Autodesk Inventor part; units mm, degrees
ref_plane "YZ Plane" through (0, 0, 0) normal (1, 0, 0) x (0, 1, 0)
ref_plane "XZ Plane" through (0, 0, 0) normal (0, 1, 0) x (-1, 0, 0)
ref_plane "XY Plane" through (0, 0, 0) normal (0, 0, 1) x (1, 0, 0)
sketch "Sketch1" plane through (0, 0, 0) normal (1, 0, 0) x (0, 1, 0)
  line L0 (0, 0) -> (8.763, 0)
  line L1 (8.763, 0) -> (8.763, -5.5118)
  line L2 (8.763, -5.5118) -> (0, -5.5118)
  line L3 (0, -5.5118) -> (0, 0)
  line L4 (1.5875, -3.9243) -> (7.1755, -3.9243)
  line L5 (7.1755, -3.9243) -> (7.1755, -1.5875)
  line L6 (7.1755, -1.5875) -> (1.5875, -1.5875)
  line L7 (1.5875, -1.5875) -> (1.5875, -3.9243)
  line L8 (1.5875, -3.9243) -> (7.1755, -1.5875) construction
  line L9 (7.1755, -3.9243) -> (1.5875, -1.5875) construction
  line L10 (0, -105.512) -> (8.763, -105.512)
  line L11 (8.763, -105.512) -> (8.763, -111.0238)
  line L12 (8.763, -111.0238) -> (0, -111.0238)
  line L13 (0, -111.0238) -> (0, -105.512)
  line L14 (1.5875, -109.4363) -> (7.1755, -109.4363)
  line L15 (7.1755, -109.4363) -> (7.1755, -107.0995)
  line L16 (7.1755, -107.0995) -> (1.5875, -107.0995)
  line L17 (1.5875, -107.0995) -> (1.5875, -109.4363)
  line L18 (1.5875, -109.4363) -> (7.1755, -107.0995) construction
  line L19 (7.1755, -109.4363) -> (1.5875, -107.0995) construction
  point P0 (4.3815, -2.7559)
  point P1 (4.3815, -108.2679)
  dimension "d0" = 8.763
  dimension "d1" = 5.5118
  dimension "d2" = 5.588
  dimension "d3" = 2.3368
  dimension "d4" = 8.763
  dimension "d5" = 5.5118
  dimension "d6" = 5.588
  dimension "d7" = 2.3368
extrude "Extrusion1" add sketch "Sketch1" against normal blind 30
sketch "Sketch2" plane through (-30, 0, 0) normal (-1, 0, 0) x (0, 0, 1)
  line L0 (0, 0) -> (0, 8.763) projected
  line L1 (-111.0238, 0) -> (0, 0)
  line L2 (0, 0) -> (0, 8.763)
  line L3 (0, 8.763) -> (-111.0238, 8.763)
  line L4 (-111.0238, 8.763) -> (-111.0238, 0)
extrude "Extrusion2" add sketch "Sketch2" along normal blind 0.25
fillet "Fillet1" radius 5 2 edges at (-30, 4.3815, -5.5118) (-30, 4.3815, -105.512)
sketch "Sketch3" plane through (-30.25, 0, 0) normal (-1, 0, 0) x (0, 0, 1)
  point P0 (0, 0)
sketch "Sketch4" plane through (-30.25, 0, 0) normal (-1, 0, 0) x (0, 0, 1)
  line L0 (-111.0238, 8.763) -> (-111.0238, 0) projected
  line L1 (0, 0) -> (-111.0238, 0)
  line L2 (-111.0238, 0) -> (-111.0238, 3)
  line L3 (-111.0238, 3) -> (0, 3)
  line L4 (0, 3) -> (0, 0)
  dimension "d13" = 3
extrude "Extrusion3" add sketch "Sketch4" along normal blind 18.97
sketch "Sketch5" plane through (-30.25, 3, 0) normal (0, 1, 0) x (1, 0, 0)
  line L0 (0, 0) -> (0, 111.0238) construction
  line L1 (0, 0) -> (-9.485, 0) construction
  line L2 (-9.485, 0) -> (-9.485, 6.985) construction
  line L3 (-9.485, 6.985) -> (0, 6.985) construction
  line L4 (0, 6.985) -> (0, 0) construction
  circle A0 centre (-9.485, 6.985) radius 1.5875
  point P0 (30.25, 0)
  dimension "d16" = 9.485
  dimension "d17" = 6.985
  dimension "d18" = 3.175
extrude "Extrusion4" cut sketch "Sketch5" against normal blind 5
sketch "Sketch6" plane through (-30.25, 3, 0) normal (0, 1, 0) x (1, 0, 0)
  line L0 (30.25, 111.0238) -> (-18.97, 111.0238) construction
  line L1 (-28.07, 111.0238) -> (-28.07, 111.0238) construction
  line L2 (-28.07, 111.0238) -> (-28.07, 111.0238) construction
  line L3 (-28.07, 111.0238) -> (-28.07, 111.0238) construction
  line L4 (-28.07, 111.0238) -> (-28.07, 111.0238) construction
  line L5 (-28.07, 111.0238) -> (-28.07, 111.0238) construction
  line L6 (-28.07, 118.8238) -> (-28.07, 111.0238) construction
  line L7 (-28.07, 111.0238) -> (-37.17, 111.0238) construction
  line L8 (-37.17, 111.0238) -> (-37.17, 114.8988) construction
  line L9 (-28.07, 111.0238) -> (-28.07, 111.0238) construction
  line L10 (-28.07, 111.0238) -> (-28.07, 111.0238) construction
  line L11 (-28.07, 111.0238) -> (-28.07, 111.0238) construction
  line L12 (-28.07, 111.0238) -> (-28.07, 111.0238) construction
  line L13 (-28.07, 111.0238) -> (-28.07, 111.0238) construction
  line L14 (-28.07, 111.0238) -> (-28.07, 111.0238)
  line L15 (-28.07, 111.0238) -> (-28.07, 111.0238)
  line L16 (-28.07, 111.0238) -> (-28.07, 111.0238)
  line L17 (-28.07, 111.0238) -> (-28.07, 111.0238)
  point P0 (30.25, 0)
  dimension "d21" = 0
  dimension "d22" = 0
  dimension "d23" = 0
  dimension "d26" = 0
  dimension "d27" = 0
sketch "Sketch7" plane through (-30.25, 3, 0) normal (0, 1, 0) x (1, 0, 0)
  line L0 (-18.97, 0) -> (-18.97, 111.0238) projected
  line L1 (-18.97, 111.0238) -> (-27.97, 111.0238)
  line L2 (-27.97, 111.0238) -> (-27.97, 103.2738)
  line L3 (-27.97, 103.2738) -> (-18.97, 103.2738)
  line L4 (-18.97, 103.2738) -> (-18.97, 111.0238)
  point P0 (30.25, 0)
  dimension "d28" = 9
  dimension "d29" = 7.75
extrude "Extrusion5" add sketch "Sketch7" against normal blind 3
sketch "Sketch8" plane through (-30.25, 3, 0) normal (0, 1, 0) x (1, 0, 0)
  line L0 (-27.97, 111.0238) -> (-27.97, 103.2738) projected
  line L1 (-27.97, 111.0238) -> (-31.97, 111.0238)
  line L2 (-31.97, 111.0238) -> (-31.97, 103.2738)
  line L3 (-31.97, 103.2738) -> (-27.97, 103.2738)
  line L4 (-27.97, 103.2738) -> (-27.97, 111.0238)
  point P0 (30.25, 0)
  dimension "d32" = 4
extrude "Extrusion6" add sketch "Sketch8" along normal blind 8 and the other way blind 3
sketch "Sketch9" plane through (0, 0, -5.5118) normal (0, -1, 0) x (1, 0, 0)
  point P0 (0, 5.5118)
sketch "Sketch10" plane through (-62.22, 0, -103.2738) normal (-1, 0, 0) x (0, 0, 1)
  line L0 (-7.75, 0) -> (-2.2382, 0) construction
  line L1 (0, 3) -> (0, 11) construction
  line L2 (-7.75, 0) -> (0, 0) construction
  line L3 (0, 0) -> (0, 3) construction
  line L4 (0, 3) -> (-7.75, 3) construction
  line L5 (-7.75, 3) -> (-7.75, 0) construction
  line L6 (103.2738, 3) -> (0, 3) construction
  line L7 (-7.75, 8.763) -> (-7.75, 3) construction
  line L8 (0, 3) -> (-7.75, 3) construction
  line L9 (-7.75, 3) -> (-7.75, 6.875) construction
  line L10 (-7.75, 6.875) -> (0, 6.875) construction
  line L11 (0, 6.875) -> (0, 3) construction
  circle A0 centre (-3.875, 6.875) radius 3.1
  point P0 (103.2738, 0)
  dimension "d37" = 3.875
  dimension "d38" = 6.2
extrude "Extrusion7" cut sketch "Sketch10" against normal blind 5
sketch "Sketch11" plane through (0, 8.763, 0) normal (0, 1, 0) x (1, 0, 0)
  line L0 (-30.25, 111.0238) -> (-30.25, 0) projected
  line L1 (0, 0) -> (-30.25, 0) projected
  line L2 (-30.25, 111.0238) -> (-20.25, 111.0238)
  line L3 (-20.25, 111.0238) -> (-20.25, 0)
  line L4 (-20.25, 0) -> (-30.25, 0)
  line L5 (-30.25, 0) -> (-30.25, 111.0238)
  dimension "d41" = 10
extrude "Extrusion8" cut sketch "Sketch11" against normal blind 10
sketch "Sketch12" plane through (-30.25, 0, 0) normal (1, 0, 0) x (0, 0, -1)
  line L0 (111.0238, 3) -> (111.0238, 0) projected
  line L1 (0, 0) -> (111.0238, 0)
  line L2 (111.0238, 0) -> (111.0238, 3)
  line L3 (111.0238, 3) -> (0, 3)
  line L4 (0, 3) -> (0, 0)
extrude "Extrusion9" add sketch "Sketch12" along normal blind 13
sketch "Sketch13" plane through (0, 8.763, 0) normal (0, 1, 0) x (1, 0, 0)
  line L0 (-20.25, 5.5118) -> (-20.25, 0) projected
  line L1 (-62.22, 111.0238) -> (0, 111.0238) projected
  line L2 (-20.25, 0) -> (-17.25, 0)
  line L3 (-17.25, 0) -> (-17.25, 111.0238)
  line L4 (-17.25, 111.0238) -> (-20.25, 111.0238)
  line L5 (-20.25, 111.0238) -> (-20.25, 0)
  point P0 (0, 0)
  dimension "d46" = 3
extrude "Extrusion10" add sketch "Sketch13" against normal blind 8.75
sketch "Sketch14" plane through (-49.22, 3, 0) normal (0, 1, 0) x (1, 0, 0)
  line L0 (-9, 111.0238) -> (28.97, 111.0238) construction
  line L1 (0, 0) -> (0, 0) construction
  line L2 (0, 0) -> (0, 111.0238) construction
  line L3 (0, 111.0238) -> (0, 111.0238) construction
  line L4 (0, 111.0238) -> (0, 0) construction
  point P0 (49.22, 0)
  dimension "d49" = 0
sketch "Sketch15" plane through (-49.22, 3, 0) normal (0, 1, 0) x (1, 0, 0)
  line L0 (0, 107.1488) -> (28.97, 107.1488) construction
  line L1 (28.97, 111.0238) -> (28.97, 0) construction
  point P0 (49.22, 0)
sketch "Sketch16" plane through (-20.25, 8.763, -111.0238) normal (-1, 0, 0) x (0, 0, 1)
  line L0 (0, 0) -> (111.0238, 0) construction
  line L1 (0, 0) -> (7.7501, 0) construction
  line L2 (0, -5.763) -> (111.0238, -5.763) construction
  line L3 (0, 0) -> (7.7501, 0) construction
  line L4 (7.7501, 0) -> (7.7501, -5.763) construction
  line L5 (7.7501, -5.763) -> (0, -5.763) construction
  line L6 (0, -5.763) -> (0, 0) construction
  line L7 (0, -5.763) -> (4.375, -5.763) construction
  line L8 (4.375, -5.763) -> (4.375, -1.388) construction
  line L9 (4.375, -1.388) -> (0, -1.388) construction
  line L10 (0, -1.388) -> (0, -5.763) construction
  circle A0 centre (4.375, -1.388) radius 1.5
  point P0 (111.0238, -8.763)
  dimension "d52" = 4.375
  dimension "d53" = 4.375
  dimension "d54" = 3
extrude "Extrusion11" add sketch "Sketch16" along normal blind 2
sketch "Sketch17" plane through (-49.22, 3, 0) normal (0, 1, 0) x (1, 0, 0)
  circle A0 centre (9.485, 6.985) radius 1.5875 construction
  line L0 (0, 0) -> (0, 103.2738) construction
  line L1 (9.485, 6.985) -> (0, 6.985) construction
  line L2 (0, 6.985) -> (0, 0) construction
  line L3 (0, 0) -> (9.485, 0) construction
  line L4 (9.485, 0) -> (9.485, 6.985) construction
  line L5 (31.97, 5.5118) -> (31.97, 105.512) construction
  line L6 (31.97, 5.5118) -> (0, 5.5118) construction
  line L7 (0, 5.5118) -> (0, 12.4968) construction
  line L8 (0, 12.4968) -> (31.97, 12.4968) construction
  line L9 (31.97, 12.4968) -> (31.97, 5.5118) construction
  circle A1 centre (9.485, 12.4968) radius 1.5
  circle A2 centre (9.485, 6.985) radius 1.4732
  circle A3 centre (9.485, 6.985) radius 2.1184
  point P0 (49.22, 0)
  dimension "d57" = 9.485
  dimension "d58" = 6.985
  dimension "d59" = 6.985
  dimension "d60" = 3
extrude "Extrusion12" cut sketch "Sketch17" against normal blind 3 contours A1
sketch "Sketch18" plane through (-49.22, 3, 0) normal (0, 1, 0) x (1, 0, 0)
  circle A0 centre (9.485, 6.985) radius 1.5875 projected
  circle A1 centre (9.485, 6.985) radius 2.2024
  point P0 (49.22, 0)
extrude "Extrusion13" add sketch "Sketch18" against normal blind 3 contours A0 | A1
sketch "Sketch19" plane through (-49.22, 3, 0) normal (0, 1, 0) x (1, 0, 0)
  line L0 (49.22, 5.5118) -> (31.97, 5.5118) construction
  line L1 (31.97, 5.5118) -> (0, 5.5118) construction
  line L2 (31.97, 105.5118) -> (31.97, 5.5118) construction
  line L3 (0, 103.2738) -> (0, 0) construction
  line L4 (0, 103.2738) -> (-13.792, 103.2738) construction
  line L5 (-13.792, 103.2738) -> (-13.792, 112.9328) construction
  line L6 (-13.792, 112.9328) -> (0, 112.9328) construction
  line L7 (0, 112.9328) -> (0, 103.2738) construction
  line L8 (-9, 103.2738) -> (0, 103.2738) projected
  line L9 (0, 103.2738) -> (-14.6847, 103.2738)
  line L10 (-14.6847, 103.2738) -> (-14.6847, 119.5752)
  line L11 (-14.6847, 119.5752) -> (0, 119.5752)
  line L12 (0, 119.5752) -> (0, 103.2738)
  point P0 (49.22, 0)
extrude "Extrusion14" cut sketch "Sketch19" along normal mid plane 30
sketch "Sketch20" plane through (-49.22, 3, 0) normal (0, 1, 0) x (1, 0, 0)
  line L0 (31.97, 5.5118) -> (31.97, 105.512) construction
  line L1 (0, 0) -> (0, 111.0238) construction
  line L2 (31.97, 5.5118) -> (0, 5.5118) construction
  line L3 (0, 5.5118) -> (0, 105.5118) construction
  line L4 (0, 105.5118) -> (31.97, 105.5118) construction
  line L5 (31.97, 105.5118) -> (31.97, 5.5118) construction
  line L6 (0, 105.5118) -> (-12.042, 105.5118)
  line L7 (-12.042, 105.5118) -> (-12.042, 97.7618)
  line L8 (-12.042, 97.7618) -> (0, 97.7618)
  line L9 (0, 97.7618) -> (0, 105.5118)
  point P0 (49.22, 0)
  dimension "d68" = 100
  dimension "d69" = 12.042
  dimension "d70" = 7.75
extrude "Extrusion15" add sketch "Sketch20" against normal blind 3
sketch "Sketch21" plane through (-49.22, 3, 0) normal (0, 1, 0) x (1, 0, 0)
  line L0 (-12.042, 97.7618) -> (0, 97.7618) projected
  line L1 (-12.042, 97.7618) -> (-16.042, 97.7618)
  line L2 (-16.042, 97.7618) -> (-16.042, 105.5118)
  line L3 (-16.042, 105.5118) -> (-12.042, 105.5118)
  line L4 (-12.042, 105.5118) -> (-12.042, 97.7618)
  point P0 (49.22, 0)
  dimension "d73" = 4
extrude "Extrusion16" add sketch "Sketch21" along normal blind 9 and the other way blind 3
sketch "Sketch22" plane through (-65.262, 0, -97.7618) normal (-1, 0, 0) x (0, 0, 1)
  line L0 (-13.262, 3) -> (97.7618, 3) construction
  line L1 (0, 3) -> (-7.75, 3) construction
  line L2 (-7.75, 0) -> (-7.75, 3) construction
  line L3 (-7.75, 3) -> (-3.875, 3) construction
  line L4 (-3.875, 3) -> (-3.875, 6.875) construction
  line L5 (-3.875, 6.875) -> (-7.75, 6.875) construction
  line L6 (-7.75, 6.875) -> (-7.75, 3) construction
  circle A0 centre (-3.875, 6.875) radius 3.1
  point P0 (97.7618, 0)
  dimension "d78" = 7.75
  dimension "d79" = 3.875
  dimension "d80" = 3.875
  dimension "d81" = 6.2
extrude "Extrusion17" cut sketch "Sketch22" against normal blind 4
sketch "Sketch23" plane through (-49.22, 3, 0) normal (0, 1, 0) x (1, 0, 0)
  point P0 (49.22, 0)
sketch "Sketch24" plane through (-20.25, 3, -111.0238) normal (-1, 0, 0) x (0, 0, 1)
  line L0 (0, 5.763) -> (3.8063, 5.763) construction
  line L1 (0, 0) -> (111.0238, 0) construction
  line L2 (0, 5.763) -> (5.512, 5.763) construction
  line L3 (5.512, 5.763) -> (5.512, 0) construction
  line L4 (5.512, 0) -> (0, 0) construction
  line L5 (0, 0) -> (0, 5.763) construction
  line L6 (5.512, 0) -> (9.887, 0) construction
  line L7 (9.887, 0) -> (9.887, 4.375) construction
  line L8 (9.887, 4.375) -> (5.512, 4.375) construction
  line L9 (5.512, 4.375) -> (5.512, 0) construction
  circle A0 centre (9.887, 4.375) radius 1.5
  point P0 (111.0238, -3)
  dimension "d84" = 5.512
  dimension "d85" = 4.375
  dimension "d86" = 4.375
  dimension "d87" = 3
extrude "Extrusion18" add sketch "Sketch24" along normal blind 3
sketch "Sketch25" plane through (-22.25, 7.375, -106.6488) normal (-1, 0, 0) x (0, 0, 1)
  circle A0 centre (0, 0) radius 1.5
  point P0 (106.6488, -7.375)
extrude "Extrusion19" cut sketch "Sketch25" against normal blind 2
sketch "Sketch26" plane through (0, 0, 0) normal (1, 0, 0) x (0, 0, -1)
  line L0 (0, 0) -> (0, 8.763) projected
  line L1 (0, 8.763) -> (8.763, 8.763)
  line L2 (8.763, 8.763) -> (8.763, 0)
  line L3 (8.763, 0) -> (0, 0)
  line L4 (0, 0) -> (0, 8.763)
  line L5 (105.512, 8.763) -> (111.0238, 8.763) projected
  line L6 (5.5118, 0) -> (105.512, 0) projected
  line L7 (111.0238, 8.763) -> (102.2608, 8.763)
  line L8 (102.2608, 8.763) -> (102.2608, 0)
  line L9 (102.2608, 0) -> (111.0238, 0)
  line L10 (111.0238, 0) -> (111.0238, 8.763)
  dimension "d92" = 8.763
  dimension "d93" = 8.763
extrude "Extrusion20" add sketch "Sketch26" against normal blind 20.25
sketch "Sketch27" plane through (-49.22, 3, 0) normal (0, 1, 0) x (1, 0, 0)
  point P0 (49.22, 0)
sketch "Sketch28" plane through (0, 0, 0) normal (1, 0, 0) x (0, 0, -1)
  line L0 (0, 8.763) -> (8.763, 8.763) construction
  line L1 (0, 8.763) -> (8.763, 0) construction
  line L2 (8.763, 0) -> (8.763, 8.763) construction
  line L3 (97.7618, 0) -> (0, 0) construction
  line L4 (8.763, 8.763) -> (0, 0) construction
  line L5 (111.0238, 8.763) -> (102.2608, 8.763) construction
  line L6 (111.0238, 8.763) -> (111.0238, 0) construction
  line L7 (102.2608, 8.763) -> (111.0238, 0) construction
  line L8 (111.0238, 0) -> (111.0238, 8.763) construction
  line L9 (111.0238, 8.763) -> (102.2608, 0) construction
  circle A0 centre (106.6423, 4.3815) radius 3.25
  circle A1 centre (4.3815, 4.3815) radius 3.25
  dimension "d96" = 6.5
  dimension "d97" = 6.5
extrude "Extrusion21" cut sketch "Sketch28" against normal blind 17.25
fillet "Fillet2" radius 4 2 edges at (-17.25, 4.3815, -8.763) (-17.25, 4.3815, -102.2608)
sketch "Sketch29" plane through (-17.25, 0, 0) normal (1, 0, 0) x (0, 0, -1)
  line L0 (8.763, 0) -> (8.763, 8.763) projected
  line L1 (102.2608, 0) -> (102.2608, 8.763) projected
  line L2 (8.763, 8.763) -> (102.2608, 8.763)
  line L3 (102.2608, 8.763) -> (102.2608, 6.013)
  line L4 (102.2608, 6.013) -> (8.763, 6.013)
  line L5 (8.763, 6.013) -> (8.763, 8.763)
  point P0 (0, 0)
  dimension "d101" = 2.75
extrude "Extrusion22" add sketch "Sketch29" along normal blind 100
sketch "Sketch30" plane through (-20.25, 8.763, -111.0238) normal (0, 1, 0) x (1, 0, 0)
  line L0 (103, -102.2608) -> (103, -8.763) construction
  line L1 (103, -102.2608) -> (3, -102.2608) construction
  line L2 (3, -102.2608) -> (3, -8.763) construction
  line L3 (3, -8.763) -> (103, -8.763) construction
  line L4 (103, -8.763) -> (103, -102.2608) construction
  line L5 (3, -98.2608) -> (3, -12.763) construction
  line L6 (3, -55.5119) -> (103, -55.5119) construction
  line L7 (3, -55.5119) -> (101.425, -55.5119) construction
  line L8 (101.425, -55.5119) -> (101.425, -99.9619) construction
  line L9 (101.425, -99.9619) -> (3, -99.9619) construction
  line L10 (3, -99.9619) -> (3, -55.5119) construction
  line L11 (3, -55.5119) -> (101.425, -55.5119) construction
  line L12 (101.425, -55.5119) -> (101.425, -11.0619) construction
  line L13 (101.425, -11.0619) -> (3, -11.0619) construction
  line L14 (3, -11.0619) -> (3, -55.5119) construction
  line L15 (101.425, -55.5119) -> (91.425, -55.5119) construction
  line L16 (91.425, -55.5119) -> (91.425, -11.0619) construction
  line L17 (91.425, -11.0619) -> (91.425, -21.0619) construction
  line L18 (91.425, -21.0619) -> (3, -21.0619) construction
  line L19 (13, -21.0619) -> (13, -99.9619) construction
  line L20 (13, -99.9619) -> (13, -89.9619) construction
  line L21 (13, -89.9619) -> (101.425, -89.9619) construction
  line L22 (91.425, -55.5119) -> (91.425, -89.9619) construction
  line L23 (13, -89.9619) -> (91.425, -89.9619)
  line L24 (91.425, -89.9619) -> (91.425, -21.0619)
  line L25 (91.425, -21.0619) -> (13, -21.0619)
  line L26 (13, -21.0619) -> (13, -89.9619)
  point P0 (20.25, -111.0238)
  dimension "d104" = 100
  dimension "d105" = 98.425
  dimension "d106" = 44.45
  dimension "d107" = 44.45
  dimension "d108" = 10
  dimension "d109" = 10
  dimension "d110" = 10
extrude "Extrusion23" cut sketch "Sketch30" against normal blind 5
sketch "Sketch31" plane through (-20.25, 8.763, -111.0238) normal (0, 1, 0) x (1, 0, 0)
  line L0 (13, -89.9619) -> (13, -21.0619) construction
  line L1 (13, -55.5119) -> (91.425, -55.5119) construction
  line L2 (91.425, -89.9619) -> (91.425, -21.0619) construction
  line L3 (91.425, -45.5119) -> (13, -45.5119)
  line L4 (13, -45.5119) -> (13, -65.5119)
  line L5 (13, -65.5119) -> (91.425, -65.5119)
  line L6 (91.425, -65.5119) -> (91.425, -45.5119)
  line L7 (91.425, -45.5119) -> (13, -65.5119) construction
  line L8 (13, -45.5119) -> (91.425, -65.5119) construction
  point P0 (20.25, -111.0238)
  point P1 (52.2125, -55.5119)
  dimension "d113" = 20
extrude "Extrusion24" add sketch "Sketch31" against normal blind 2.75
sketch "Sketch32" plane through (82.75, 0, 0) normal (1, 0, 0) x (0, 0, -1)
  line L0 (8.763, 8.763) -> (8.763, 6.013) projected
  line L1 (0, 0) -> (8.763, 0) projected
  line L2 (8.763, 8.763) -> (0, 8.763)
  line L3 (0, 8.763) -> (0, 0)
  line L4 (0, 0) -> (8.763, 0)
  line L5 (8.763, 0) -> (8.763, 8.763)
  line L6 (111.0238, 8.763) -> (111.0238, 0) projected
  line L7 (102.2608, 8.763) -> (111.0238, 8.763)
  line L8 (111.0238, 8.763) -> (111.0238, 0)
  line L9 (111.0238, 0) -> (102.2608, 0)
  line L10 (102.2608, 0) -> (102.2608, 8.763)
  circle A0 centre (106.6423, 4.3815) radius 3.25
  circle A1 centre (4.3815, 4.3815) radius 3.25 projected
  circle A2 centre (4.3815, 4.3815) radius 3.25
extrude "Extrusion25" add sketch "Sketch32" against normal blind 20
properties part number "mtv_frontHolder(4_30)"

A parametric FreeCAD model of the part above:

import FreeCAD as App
import Part
import Sketcher

V = App.Vector
Q = App.Units.Quantity


def edges_at(feature, points):
    """Names of the edges that pass closest to the given points."""
    edges = feature.Shape.Edges
    near = lambda p: min(range(len(edges)), key=lambda i: edges[i].distToShape(Part.Vertex(*p))[0])
    return sorted({f"Edge{near(p) + 1}" for p in points})

doc = App.newDocument("Part")
body = doc.addObject("PartDesign::Body", "Body")
body.AllowCompound = True

# Sketch on YZ plane
sketch1 = body.newObject("Sketcher::SketchObject", "Sketch")
sketch1.AttachmentSupport = (doc.getObject("YZ_Plane"), [""])
sketch1.MapMode = "FlatFace"
sketch1.addGeometry([
    Part.LineSegment(V(8.8, 0, 0), V(0, 0, 0)),  # 0
    Part.LineSegment(V(0, 0, 0), V(0, -5.5, 0)),  # 1
    Part.LineSegment(V(0, -5.5, 0), V(8.8, -5.5, 0)),  # 2
    Part.LineSegment(V(8.8, -5.5, 0), V(8.8, 0, 0)),  # 3
    Part.LineSegment(V(7.2, -3.9, 0), V(1.6, -3.9, 0)),  # 4
    Part.LineSegment(V(1.6, -3.9, 0), V(1.6, -1.6, 0)),  # 5
    Part.LineSegment(V(1.6, -1.6, 0), V(7.2, -1.6, 0)),  # 6
    Part.LineSegment(V(7.2, -1.6, 0), V(7.2, -3.9, 0)),  # 7
    Part.LineSegment(V(8.8, -105.5, 0), V(0, -105.5, 0)),  # 8
    Part.LineSegment(V(0, -105.5, 0), V(0, -111, 0)),  # 9
    Part.LineSegment(V(0, -111, 0), V(8.8, -111, 0)),  # 10
    Part.LineSegment(V(8.8, -111, 0), V(8.8, -105.5, 0)),  # 11
    Part.LineSegment(V(7.2, -109.4, 0), V(1.6, -109.4, 0)),  # 12
    Part.LineSegment(V(1.6, -109.4, 0), V(1.6, -107.1, 0)),  # 13
    Part.LineSegment(V(1.6, -107.1, 0), V(7.2, -107.1, 0)),  # 14
    Part.LineSegment(V(7.2, -107.1, 0), V(7.2, -109.4, 0)),  # 15
], False)
sketch1.addConstraint([
    Sketcher.Constraint("Coincident", 0, 2, 1, 1),
    Sketcher.Constraint("Coincident", 1, 2, 2, 1),
    Sketcher.Constraint("Coincident", 2, 2, 3, 1),
    Sketcher.Constraint("Coincident", 3, 2, 0, 1),
    Sketcher.Constraint("Coincident", 4, 2, 5, 1),
    Sketcher.Constraint("Coincident", 5, 2, 6, 1),
    Sketcher.Constraint("Coincident", 6, 2, 7, 1),
    Sketcher.Constraint("Coincident", 7, 2, 4, 1),
    Sketcher.Constraint("Coincident", 8, 2, 9, 1),
    Sketcher.Constraint("Coincident", 9, 2, 10, 1),
    Sketcher.Constraint("Coincident", 10, 2, 11, 1),
    Sketcher.Constraint("Coincident", 11, 2, 8, 1),
    Sketcher.Constraint("Coincident", 12, 2, 13, 1),
    Sketcher.Constraint("Coincident", 13, 2, 14, 1),
    Sketcher.Constraint("Coincident", 14, 2, 15, 1),
    Sketcher.Constraint("Coincident", 15, 2, 12, 1),
    Sketcher.Constraint("Horizontal", 0),
    Sketcher.Constraint("Vertical", 1),
    Sketcher.Constraint("Horizontal", 2),
    Sketcher.Constraint("Vertical", 3),
    Sketcher.Constraint("Horizontal", 4),
    Sketcher.Constraint("Vertical", 5),
    Sketcher.Constraint("Horizontal", 6),
    Sketcher.Constraint("Vertical", 7),
    Sketcher.Constraint("Horizontal", 8),
    Sketcher.Constraint("Vertical", 9),
    Sketcher.Constraint("Horizontal", 10),
    Sketcher.Constraint("Vertical", 11),
    Sketcher.Constraint("Horizontal", 12),
    Sketcher.Constraint("Vertical", 13),
    Sketcher.Constraint("Horizontal", 14),
    Sketcher.Constraint("Vertical", 15),
    Sketcher.Constraint("Coincident", 0, 2, -1, 1),
    Sketcher.Constraint("PointOnObject", 8, 2, -2),
    Sketcher.Constraint("Vertical", 3, 2, 10, 2),
    Sketcher.Constraint("Vertical", 5, 2, 12, 2),
    Sketcher.Constraint("Vertical", 7, 2, 14, 2),
    Sketcher.Constraint("Equal", 3, 9),
    Sketcher.Constraint("Equal", 7, 13),
    Sketcher.Constraint("DistanceX", 0, 2, 0, 1, Q("8.763 mm")),
    Sketcher.Constraint("DistanceX", 4, 2, 4, 1, Q("5.588 mm")),
    Sketcher.Constraint("DistanceY", 1, 2, 1, 1, Q("5.5118 mm")),
    Sketcher.Constraint("DistanceY", 5, 1, 5, 2, Q("2.3368 mm")),
    Sketcher.Constraint("DistanceY", 8, 2, -1, 1, Q("105.512 mm")),
    Sketcher.Constraint("DistanceX", -1, 1, 4, 2, Q("1.5875 mm")),
    Sketcher.Constraint("DistanceY", 4, 2, -1, 1, Q("3.9243 mm")),
    Sketcher.Constraint("DistanceY", 12, 2, -1, 1, Q("109.4363 mm")),
])
pad1 = body.newObject("PartDesign::Pad", "Pad")
pad1.Profile = sketch1
pad1.Length = 30
pad1.Reversed = True

# Sketch on YZ plane
sketch2 = body.newObject("Sketcher::SketchObject", "Sketch001")
sketch2.AttachmentSupport = (doc.getObject("YZ_Plane"), [""])
sketch2.MapMode = "FlatFace"
sketch2.AttachmentOffset = App.Placement(V(0, 0, -30), App.Rotation())
sketch2.addGeometry([
    Part.LineSegment(V(0, -111, 0), V(0, 0, 0)),
    Part.LineSegment(V(0, 0, 0), V(9, 0, 0)),
    Part.LineSegment(V(9, 0, 0), V(9, -111, 0)),
    Part.LineSegment(V(9, -111, 0), V(0, -111, 0)),
], False)
sketch2.addConstraint([
    Sketcher.Constraint("Coincident", 0, 2, 1, 1),
    Sketcher.Constraint("Coincident", 1, 2, 2, 1),
    Sketcher.Constraint("Coincident", 2, 2, 3, 1),
    Sketcher.Constraint("Coincident", 3, 2, 0, 1),
    Sketcher.Constraint("Vertical", 0),
    Sketcher.Constraint("Horizontal", 1),
    Sketcher.Constraint("Vertical", 2),
    Sketcher.Constraint("Horizontal", 3),
    Sketcher.Constraint("Coincident", 0, 2, -1, 1),
    Sketcher.Constraint("DistanceX", 1, 1, 1, 2, Q("8.763 mm")),
    Sketcher.Constraint("DistanceY", 0, 1, 0, 2, Q("111.0238 mm")),
])
pad2 = body.newObject("PartDesign::Pad", "Pad001")
pad2.Profile = sketch2
pad2.Length = 0.25
pad2.Reversed = True
doc.recompute()

fillet = body.newObject("PartDesign::Fillet", "Fillet")
fillet.Base = (pad2, edges_at(pad2, [(-30, 4.381, -5.512), (-30, 4.381, -105.512)]))
fillet.Radius = 5

# Sketch on YZ plane
sketch3 = body.newObject("Sketcher::SketchObject", "Sketch002")
sketch3.AttachmentSupport = (doc.getObject("YZ_Plane"), [""])
sketch3.MapMode = "FlatFace"
sketch3.AttachmentOffset = App.Placement(V(0, 0, -30.25), App.Rotation())
sketch3.addGeometry([
    Part.LineSegment(V(3, 0, 0), V(3, -111, 0)),
    Part.LineSegment(V(3, -111, 0), V(0, -111, 0)),
    Part.LineSegment(V(0, -111, 0), V(0, 0, 0)),
    Part.LineSegment(V(0, 0, 0), V(3, 0, 0)),
], False)
sketch3.addConstraint([
    Sketcher.Constraint("Coincident", 0, 2, 1, 1),
    Sketcher.Constraint("Coincident", 1, 2, 2, 1),
    Sketcher.Constraint("Coincident", 2, 2, 3, 1),
    Sketcher.Constraint("Coincident", 3, 2, 0, 1),
    Sketcher.Constraint("Vertical", 0),
    Sketcher.Constraint("Horizontal", 1),
    Sketcher.Constraint("Vertical", 2),
    Sketcher.Constraint("Horizontal", 3),
    Sketcher.Constraint("Coincident", 2, 2, -1, 1),
    Sketcher.Constraint("DistanceX", 1, 2, 1, 1, Q("3 mm")),
    Sketcher.Constraint("DistanceY", 0, 2, 0, 1, Q("111.0238 mm")),
])
pad3 = body.newObject("PartDesign::Pad", "Pad002")
pad3.Profile = sketch3
pad3.Length = 18.97
pad3.Reversed = True

# Sketch on XZ plane
sketch4 = body.newObject("Sketcher::SketchObject", "Sketch003")
sketch4.AttachmentSupport = (doc.getObject("XZ_Plane"), [""])
sketch4.MapMode = "FlatFace"
sketch4.AttachmentOffset = App.Placement(V(0, 0, -3), App.Rotation())
sketch4.addGeometry(Part.Circle(V(-39.7, -7, 0), V(0, 0, 1), 1.6), False)
sketch4.addConstraint([
    Sketcher.Constraint("Diameter", 0, Q("3.175 mm")),
    Sketcher.Constraint("DistanceY", 0, 3, -1, 1, Q("6.985 mm")),
    Sketcher.Constraint("DistanceX", 0, 3, -1, 1, Q("39.735 mm")),
])
pocket1 = body.newObject("PartDesign::Pocket", "Pocket")
pocket1.Profile = sketch4
pocket1.Length = 5
pocket1.Reversed = True

# Sketch on XZ plane
sketch5 = body.newObject("Sketcher::SketchObject", "Sketch004")
sketch5.AttachmentSupport = (doc.getObject("XZ_Plane"), [""])
sketch5.MapMode = "FlatFace"
sketch5.AttachmentOffset = App.Placement(V(0, 0, -3), App.Rotation())
sketch5.addGeometry([
    Part.LineSegment(V(-58, -103, 0), V(-49, -103, 0)),
    Part.LineSegment(V(-49, -103, 0), V(-49, -111, 0)),
    Part.LineSegment(V(-49, -111, 0), V(-58, -111, 0)),
    Part.LineSegment(V(-58, -111, 0), V(-58, -103, 0)),
], False)
sketch5.addConstraint([
    Sketcher.Constraint("Coincident", 0, 2, 1, 1),
    Sketcher.Constraint("Coincident", 1, 2, 2, 1),
    Sketcher.Constraint("Coincident", 2, 2, 3, 1),
    Sketcher.Constraint("Coincident", 3, 2, 0, 1),
    Sketcher.Constraint("Horizontal", 0),
    Sketcher.Constraint("Vertical", 1),
    Sketcher.Constraint("Horizontal", 2),
    Sketcher.Constraint("Vertical", 3),
    Sketcher.Constraint("DistanceX", 0, 1, 0, 2, Q("9 mm")),
    Sketcher.Constraint("DistanceY", 1, 2, 1, 1, Q("7.75 mm")),
    Sketcher.Constraint("DistanceX", 0, 2, -1, 1, Q("49.22 mm")),
    Sketcher.Constraint("DistanceY", 0, 2, -1, 1, Q("103.2738 mm")),
])
pad4 = body.newObject("PartDesign::Pad", "Pad003")
pad4.Profile = sketch5
pad4.Length = 3

# Sketch on XZ plane
sketch6 = body.newObject("Sketcher::SketchObject", "Sketch005")
sketch6.AttachmentSupport = (doc.getObject("XZ_Plane"), [""])
sketch6.MapMode = "FlatFace"
sketch6.AttachmentOffset = App.Placement(V(0, 0, -3), App.Rotation())
sketch6.addGeometry([
    Part.LineSegment(V(-58.2, -103.3, 0), V(-58.2, -111, 0)),
    Part.LineSegment(V(-58.2, -111, 0), V(-62.2, -111, 0)),
    Part.LineSegment(V(-62.2, -111, 0), V(-62.2, -103.3, 0)),
    Part.LineSegment(V(-62.2, -103.3, 0), V(-58.2, -103.3, 0)),
], False)
sketch6.addConstraint([
    Sketcher.Constraint("Coincident", 0, 2, 1, 1),
    Sketcher.Constraint("Coincident", 1, 2, 2, 1),
    Sketcher.Constraint("Coincident", 2, 2, 3, 1),
    Sketcher.Constraint("Coincident", 3, 2, 0, 1),
    Sketcher.Constraint("Vertical", 0),
    Sketcher.Constraint("Horizontal", 1),
    Sketcher.Constraint("Vertical", 2),
    Sketcher.Constraint("Horizontal", 3),
    Sketcher.Constraint("DistanceX", 1, 2, 1, 1, Q("4 mm")),
    Sketcher.Constraint("DistanceY", 0, 2, 0, 1, Q("7.75 mm")),
    Sketcher.Constraint("DistanceX", 0, 2, -1, 1, Q("58.22 mm")),
    Sketcher.Constraint("DistanceY", 0, 2, -1, 1, Q("111.0238 mm")),
])
pad5 = body.newObject("PartDesign::Pad", "Pad004")
pad5.Profile = sketch6
pad5.Type = "TwoLengths"
pad5.Length = 8
pad5.Length2 = 3
pad5.Reversed = True

# Sketch on YZ plane
sketch7 = body.newObject("Sketcher::SketchObject", "Sketch006")
sketch7.AttachmentSupport = (doc.getObject("YZ_Plane"), [""])
sketch7.MapMode = "FlatFace"
sketch7.AttachmentOffset = App.Placement(V(0, 0, -62.22), App.Rotation())
sketch7.addGeometry(Part.Circle(V(6.9, -107.1, 0), V(0, 0, 1), 3.1), False)
sketch7.addConstraint([
    Sketcher.Constraint("Diameter", 0, Q("6.2 mm")),
    Sketcher.Constraint("DistanceX", -1, 1, 0, 3, Q("6.875 mm")),
    Sketcher.Constraint("DistanceY", 0, 3, -1, 1, Q("107.1488 mm")),
])
pocket2 = body.newObject("PartDesign::Pocket", "Pocket001")
pocket2.Profile = sketch7
pocket2.Length = 5
pocket2.Reversed = True

# Sketch on XZ plane
sketch8 = body.newObject("Sketcher::SketchObject", "Sketch007")
sketch8.AttachmentSupport = (doc.getObject("XZ_Plane"), [""])
sketch8.MapMode = "FlatFace"
sketch8.AttachmentOffset = App.Placement(V(0, 0, -8.763), App.Rotation())
sketch8.addGeometry([
    Part.LineSegment(V(-20, -111, 0), V(-30, -111, 0)),
    Part.LineSegment(V(-30, -111, 0), V(-30, 0, 0)),
    Part.LineSegment(V(-30, 0, 0), V(-20, 0, 0)),
    Part.LineSegment(V(-20, 0, 0), V(-20, -111, 0)),
], False)
sketch8.addConstraint([
    Sketcher.Constraint("Coincident", 0, 2, 1, 1),
    Sketcher.Constraint("Coincident", 1, 2, 2, 1),
    Sketcher.Constraint("Coincident", 2, 2, 3, 1),
    Sketcher.Constraint("Coincident", 3, 2, 0, 1),
    Sketcher.Constraint("Horizontal", 0),
    Sketcher.Constraint("Vertical", 1),
    Sketcher.Constraint("Horizontal", 2),
    Sketcher.Constraint("Vertical", 3),
    Sketcher.Constraint("PointOnObject", 1, 2, -1),
    Sketcher.Constraint("DistanceX", 0, 2, 0, 1, Q("10 mm")),
    Sketcher.Constraint("DistanceX", 0, 2, -1, 1, Q("30.25 mm")),
    Sketcher.Constraint("DistanceY", 1, 1, 1, 2, Q("111.0238 mm")),
])
pocket3 = body.newObject("PartDesign::Pocket", "Pocket002")
pocket3.Profile = sketch8
pocket3.Length = 10
pocket3.Reversed = True

# Sketch on YZ plane
sketch9 = body.newObject("Sketcher::SketchObject", "Sketch008")
sketch9.AttachmentSupport = (doc.getObject("YZ_Plane"), [""])
sketch9.MapMode = "FlatFace"
sketch9.AttachmentOffset = App.Placement(V(0, 0, -30.25), App.Rotation())
sketch9.addGeometry([
    Part.LineSegment(V(0, -111, 0), V(3, -111, 0)),
    Part.LineSegment(V(3, -111, 0), V(3, 0, 0)),
    Part.LineSegment(V(3, 0, 0), V(0, 0, 0)),
    Part.LineSegment(V(0, 0, 0), V(0, -111, 0)),
], False)
sketch9.addConstraint([
    Sketcher.Constraint("Coincident", 0, 2, 1, 1),
    Sketcher.Constraint("Coincident", 1, 2, 2, 1),
    Sketcher.Constraint("Coincident", 2, 2, 3, 1),
    Sketcher.Constraint("Coincident", 3, 2, 0, 1),
    Sketcher.Constraint("Horizontal", 0),
    Sketcher.Constraint("Vertical", 1),
    Sketcher.Constraint("Horizontal", 2),
    Sketcher.Constraint("Vertical", 3),
    Sketcher.Constraint("Coincident", 2, 2, -1, 1),
    Sketcher.Constraint("DistanceX", 0, 1, 0, 2, Q("3 mm")),
    Sketcher.Constraint("DistanceY", 1, 1, 1, 2, Q("111.0238 mm")),
])
pad6 = body.newObject("PartDesign::Pad", "Pad005")
pad6.Profile = sketch9
pad6.Length = 13

# Sketch on XZ plane
sketch10 = body.newObject("Sketcher::SketchObject", "Sketch009")
sketch10.AttachmentSupport = (doc.getObject("XZ_Plane"), [""])
sketch10.MapMode = "FlatFace"
sketch10.AttachmentOffset = App.Placement(V(0, 0, -8.763), App.Rotation())
sketch10.addGeometry([
    Part.LineSegment(V(-20.2, -111, 0), V(-20.2, 0, 0)),
    Part.LineSegment(V(-20.2, 0, 0), V(-17.2, 0, 0)),
    Part.LineSegment(V(-17.2, 0, 0), V(-17.2, -111, 0)),
    Part.LineSegment(V(-17.2, -111, 0), V(-20.2, -111, 0)),
], False)
sketch10.addConstraint([
    Sketcher.Constraint("Coincident", 0, 2, 1, 1),
    Sketcher.Constraint("Coincident", 1, 2, 2, 1),
    Sketcher.Constraint("Coincident", 2, 2, 3, 1),
    Sketcher.Constraint("Coincident", 3, 2, 0, 1),
    Sketcher.Constraint("Vertical", 0),
    Sketcher.Constraint("Horizontal", 1),
    Sketcher.Constraint("Vertical", 2),
    Sketcher.Constraint("Horizontal", 3),
    Sketcher.Constraint("PointOnObject", 0, 2, -1),
    Sketcher.Constraint("DistanceX", 1, 1, 1, 2, Q("3 mm")),
    Sketcher.Constraint("DistanceX", 0, 2, -1, 1, Q("20.25 mm")),
    Sketcher.Constraint("DistanceY", 0, 1, 0, 2, Q("111.0238 mm")),
])
pad7 = body.newObject("PartDesign::Pad", "Pad006")
pad7.Profile = sketch10
pad7.Length = 8.75

# Sketch on YZ plane
sketch11 = body.newObject("Sketcher::SketchObject", "Sketch010")
sketch11.AttachmentSupport = (doc.getObject("YZ_Plane"), [""])
sketch11.MapMode = "FlatFace"
sketch11.AttachmentOffset = App.Placement(V(0, 0, -20.25), App.Rotation())
sketch11.addGeometry(Part.Circle(V(7.4, -106.6, 0), V(0, 0, 1), 1.5), False)
sketch11.addConstraint([
    Sketcher.Constraint("Diameter", 0, Q("3 mm")),
    Sketcher.Constraint("DistanceX", -1, 1, 0, 3, Q("7.375 mm")),
    Sketcher.Constraint("DistanceY", 0, 3, -1, 1, Q("106.6488 mm")),
])
pad8 = body.newObject("PartDesign::Pad", "Pad007")
pad8.Profile = sketch11
pad8.Length = 2
pad8.Reversed = True

# Sketch on XZ plane
sketch12 = body.newObject("Sketcher::SketchObject", "Sketch011")
sketch12.AttachmentSupport = (doc.getObject("XZ_Plane"), [""])
sketch12.MapMode = "FlatFace"
sketch12.AttachmentOffset = App.Placement(V(0, 0, -3), App.Rotation())
sketch12.addGeometry(Part.Circle(V(-39.7, -12.5, 0), V(0, 0, 1), 1.5), False)
sketch12.addConstraint([
    Sketcher.Constraint("Diameter", 0, Q("3 mm")),
    Sketcher.Constraint("DistanceX", 0, 3, -1, 1, Q("39.735 mm")),
    Sketcher.Constraint("DistanceY", 0, 3, -1, 1, Q("12.4968 mm")),
])
pocket4 = body.newObject("PartDesign::Pocket", "Pocket003")
pocket4.Profile = sketch12
pocket4.Length = 3
pocket4.Reversed = True

# Sketch on XZ plane
sketch13 = body.newObject("Sketcher::SketchObject", "Sketch012")
sketch13.AttachmentSupport = (doc.getObject("XZ_Plane"), [""])
sketch13.MapMode = "FlatFace"
sketch13.AttachmentOffset = App.Placement(V(0, 0, -3), App.Rotation())
sketch13.addGeometry(Part.Circle(V(-39.7, -7, 0), V(0, 0, 1), 2.2), False)
sketch13.addConstraint([
    Sketcher.Constraint("Diameter", 0, Q("4.4048 mm")),
    Sketcher.Constraint("DistanceX", 0, 3, -1, 1, Q("39.735 mm")),
    Sketcher.Constraint("DistanceY", 0, 3, -1, 1, Q("6.985 mm")),
])
pad9 = body.newObject("PartDesign::Pad", "Pad008")
pad9.Profile = sketch13
pad9.Length = 3

# Sketch on XZ plane
sketch14 = body.newObject("Sketcher::SketchObject", "Sketch013")
sketch14.AttachmentSupport = (doc.getObject("XZ_Plane"), [""])
sketch14.MapMode = "FlatFace"
sketch14.AttachmentOffset = App.Placement(V(0, 0, -3), App.Rotation())
sketch14.addGeometry([
    Part.LineSegment(V(-64, -103, 0), V(-49, -103, 0)),
    Part.LineSegment(V(-49, -103, 0), V(-49, -120, 0)),
    Part.LineSegment(V(-49, -120, 0), V(-64, -120, 0)),
    Part.LineSegment(V(-64, -120, 0), V(-64, -103, 0)),
], False)
sketch14.addConstraint([
    Sketcher.Constraint("Coincident", 0, 2, 1, 1),
    Sketcher.Constraint("Coincident", 1, 2, 2, 1),
    Sketcher.Constraint("Coincident", 2, 2, 3, 1),
    Sketcher.Constraint("Coincident", 3, 2, 0, 1),
    Sketcher.Constraint("Horizontal", 0),
    Sketcher.Constraint("Vertical", 1),
    Sketcher.Constraint("Horizontal", 2),
    Sketcher.Constraint("Vertical", 3),
    Sketcher.Constraint("DistanceX", 0, 2, -1, 1, Q("49.22 mm")),
    Sketcher.Constraint("DistanceX", 0, 1, 0, 2, Q("14.6847 mm")),
    Sketcher.Constraint("DistanceY", 1, 2, 1, 1, Q("16.3014 mm")),
    Sketcher.Constraint("DistanceY", 0, 2, -1, 1, Q("103.2738 mm")),
])
pocket5 = body.newObject("PartDesign::Pocket", "Pocket004")
pocket5.Profile = sketch14
pocket5.Length = 30
pocket5.Midplane = True

# Sketch on XZ plane
sketch15 = body.newObject("Sketcher::SketchObject", "Sketch014")
sketch15.AttachmentSupport = (doc.getObject("XZ_Plane"), [""])
sketch15.MapMode = "FlatFace"
sketch15.AttachmentOffset = App.Placement(V(0, 0, -3), App.Rotation())
sketch15.addGeometry([
    Part.LineSegment(V(-49, -98, 0), V(-49, -106, 0)),
    Part.LineSegment(V(-49, -106, 0), V(-61, -106, 0)),
    Part.LineSegment(V(-61, -106, 0), V(-61, -98, 0)),
    Part.LineSegment(V(-61, -98, 0), V(-49, -98, 0)),
], False)
sketch15.addConstraint([
    Sketcher.Constraint("Coincident", 0, 2, 1, 1),
    Sketcher.Constraint("Coincident", 1, 2, 2, 1),
    Sketcher.Constraint("Coincident", 2, 2, 3, 1),
    Sketcher.Constraint("Coincident", 3, 2, 0, 1),
    Sketcher.Constraint("Vertical", 0),
    Sketcher.Constraint("Horizontal", 1),
    Sketcher.Constraint("Vertical", 2),
    Sketcher.Constraint("Horizontal", 3),
    Sketcher.Constraint("DistanceY", 0, 2, 0, 1, Q("7.75 mm")),
    Sketcher.Constraint("DistanceX", 1, 2, 1, 1, Q("12.042 mm")),
    Sketcher.Constraint("DistanceX", 0, 2, -1, 1, Q("49.22 mm")),
    Sketcher.Constraint("DistanceY", 0, 2, -1, 1, Q("105.5118 mm")),
])
pad10 = body.newObject("PartDesign::Pad", "Pad009")
pad10.Profile = sketch15
pad10.Length = 3

# Sketch on XZ plane
sketch16 = body.newObject("Sketcher::SketchObject", "Sketch015")
sketch16.AttachmentSupport = (doc.getObject("XZ_Plane"), [""])
sketch16.MapMode = "FlatFace"
sketch16.AttachmentOffset = App.Placement(V(0, 0, -3), App.Rotation())
sketch16.addGeometry([
    Part.LineSegment(V(-65.3, -97.8, 0), V(-61.3, -97.8, 0)),
    Part.LineSegment(V(-61.3, -97.8, 0), V(-61.3, -105.5, 0)),
    Part.LineSegment(V(-61.3, -105.5, 0), V(-65.3, -105.5, 0)),
    Part.LineSegment(V(-65.3, -105.5, 0), V(-65.3, -97.8, 0)),
], False)
sketch16.addConstraint([
    Sketcher.Constraint("Coincident", 0, 2, 1, 1),
    Sketcher.Constraint("Coincident", 1, 2, 2, 1),
    Sketcher.Constraint("Coincident", 2, 2, 3, 1),
    Sketcher.Constraint("Coincident", 3, 2, 0, 1),
    Sketcher.Constraint("Horizontal", 0),
    Sketcher.Constraint("Vertical", 1),
    Sketcher.Constraint("Horizontal", 2),
    Sketcher.Constraint("Vertical", 3),
    Sketcher.Constraint("DistanceX", 0, 1, 0, 2, Q("4 mm")),
    Sketcher.Constraint("DistanceY", 1, 2, 1, 1, Q("7.75 mm")),
    Sketcher.Constraint("DistanceX", 0, 2, -1, 1, Q("61.262 mm")),
    Sketcher.Constraint("DistanceY", 0, 2, -1, 1, Q("97.7618 mm")),
])
pad11 = body.newObject("PartDesign::Pad", "Pad010")
pad11.Profile = sketch16
pad11.Type = "TwoLengths"
pad11.Length = 9
pad11.Length2 = 3
pad11.Reversed = True

# Sketch on YZ plane
sketch17 = body.newObject("Sketcher::SketchObject", "Sketch016")
sketch17.AttachmentSupport = (doc.getObject("YZ_Plane"), [""])
sketch17.MapMode = "FlatFace"
sketch17.AttachmentOffset = App.Placement(V(0, 0, -65.262), App.Rotation())
sketch17.addGeometry(Part.Circle(V(6.9, -101.6, 0), V(0, 0, 1), 3.1), False)
sketch17.addConstraint([
    Sketcher.Constraint("Diameter", 0, Q("6.2 mm")),
    Sketcher.Constraint("DistanceX", -1, 1, 0, 3, Q("6.875 mm")),
    Sketcher.Constraint("DistanceY", 0, 3, -1, 1, Q("101.6368 mm")),
])
pocket6 = body.newObject("PartDesign::Pocket", "Pocket005")
pocket6.Profile = sketch17
pocket6.Length = 4
pocket6.Reversed = True

# Sketch on YZ plane
sketch18 = body.newObject("Sketcher::SketchObject", "Sketch017")
sketch18.AttachmentSupport = (doc.getObject("YZ_Plane"), [""])
sketch18.MapMode = "FlatFace"
sketch18.AttachmentOffset = App.Placement(V(0, 0, -20.25), App.Rotation())
sketch18.addGeometry(Part.Circle(V(7.4, -101.1, 0), V(0, 0, 1), 1.5), False)
sketch18.addConstraint([
    Sketcher.Constraint("Diameter", 0, Q("3 mm")),
    Sketcher.Constraint("DistanceX", -1, 1, 0, 3, Q("7.375 mm")),
    Sketcher.Constraint("DistanceY", 0, 3, -1, 1, Q("101.1368 mm")),
])
pad12 = body.newObject("PartDesign::Pad", "Pad011")
pad12.Profile = sketch18
pad12.Length = 3
pad12.Reversed = True

# Sketch on YZ plane
sketch19 = body.newObject("Sketcher::SketchObject", "Sketch018")
sketch19.AttachmentSupport = (doc.getObject("YZ_Plane"), [""])
sketch19.MapMode = "FlatFace"
sketch19.AttachmentOffset = App.Placement(V(0, 0, -22.25), App.Rotation())
sketch19.addGeometry(Part.Circle(V(7.4, -106.6, 0), V(0, 0, 1), 1.5), False)
sketch19.addConstraint([
    Sketcher.Constraint("Diameter", 0, Q("3 mm")),
    Sketcher.Constraint("DistanceX", -1, 1, 0, 3, Q("7.375 mm")),
    Sketcher.Constraint("DistanceY", 0, 3, -1, 1, Q("106.6488 mm")),
])
pocket7 = body.newObject("PartDesign::Pocket", "Pocket006")
pocket7.Profile = sketch19
pocket7.Length = 2
pocket7.Reversed = True

# Sketch on YZ plane
sketch20 = body.newObject("Sketcher::SketchObject", "Sketch019")
sketch20.AttachmentSupport = (doc.getObject("YZ_Plane"), [""])
sketch20.MapMode = "FlatFace"
sketch20.addGeometry([
    Part.LineSegment(V(9, -102, 0), V(0, -102, 0)),  # 0
    Part.LineSegment(V(0, -102, 0), V(0, -111, 0)),  # 1
    Part.LineSegment(V(0, -111, 0), V(9, -111, 0)),  # 2
    Part.LineSegment(V(9, -111, 0), V(9, -102, 0)),  # 3
    Part.LineSegment(V(9, 0, 0), V(0, 0, 0)),  # 4
    Part.LineSegment(V(0, 0, 0), V(0, -9, 0)),  # 5
    Part.LineSegment(V(0, -9, 0), V(9, -9, 0)),  # 6
    Part.LineSegment(V(9, -9, 0), V(9, 0, 0)),  # 7
], False)
sketch20.addConstraint([
    Sketcher.Constraint("Coincident", 0, 2, 1, 1),
    Sketcher.Constraint("Coincident", 1, 2, 2, 1),
    Sketcher.Constraint("Coincident", 2, 2, 3, 1),
    Sketcher.Constraint("Coincident", 3, 2, 0, 1),
    Sketcher.Constraint("Coincident", 4, 2, 5, 1),
    Sketcher.Constraint("Coincident", 5, 2, 6, 1),
    Sketcher.Constraint("Coincident", 6, 2, 7, 1),
    Sketcher.Constraint("Coincident", 7, 2, 4, 1),
    Sketcher.Constraint("Horizontal", 0),
    Sketcher.Constraint("Vertical", 1),
    Sketcher.Constraint("Horizontal", 2),
    Sketcher.Constraint("Vertical", 3),
    Sketcher.Constraint("Horizontal", 4),
    Sketcher.Constraint("Vertical", 5),
    Sketcher.Constraint("Horizontal", 6),
    Sketcher.Constraint("Vertical", 7),
    Sketcher.Constraint("Coincident", 4, 2, -1, 1),
    Sketcher.Constraint("PointOnObject", 0, 2, -2),
    Sketcher.Constraint("Vertical", 3, 2, 6, 2),
    Sketcher.Constraint("Equal", 6, 1),
    Sketcher.Constraint("Equal", 3, 5),
    Sketcher.Constraint("DistanceX", 0, 2, 0, 1, Q("8.763 mm")),
    Sketcher.Constraint("DistanceY", 0, 2, -1, 1, Q("102.2608 mm")),
])
pad13 = body.newObject("PartDesign::Pad", "Pad012")
pad13.Profile = sketch20
pad13.Length = 20.25
pad13.Reversed = True

# Sketch on YZ plane
sketch21 = body.newObject("Sketcher::SketchObject", "Sketch020")
sketch21.AttachmentSupport = (doc.getObject("YZ_Plane"), [""])
sketch21.MapMode = "FlatFace"
sketch21.addGeometry([
    Part.Circle(V(4.4, -106.6, 0), V(0, 0, 1), 3.2),
    Part.Circle(V(4.4, -4.4, 0), V(0, 0, 1), 3.2),
], False)
sketch21.addConstraint([
    Sketcher.Constraint("Equal", 0, 1),
    Sketcher.Constraint("Vertical", 0, 3, 1, 3),
    Sketcher.Constraint("Diameter", 0, Q("6.5 mm")),
    Sketcher.Constraint("DistanceX", -1, 1, 0, 3, Q("4.3815 mm")),
    Sketcher.Constraint("DistanceY", 0, 3, -1, 1, Q("106.6423 mm")),
    Sketcher.Constraint("DistanceY", 1, 3, -1, 1, Q("4.3815 mm")),
])
pocket8 = body.newObject("PartDesign::Pocket", "Pocket007")
pocket8.Profile = sketch21
pocket8.Length = 17.25
doc.recompute()

fillet2 = body.newObject("PartDesign::Fillet", "Fillet001")
fillet2.Base = (pocket8, edges_at(pocket8, [(-17.25, 4.381, -8.763), (-17.25, 4.381, -102.261)]))
fillet2.Radius = 4

# Sketch on YZ plane
sketch22 = body.newObject("Sketcher::SketchObject", "Sketch021")
sketch22.AttachmentSupport = (doc.getObject("YZ_Plane"), [""])
sketch22.MapMode = "FlatFace"
sketch22.AttachmentOffset = App.Placement(V(0, 0, -17.25), App.Rotation())
sketch22.addGeometry([
    Part.LineSegment(V(8.8, -8.8, 0), V(6, -8.8, 0)),
    Part.LineSegment(V(6, -8.8, 0), V(6, -102.3, 0)),
    Part.LineSegment(V(6, -102.3, 0), V(8.8, -102.3, 0)),
    Part.LineSegment(V(8.8, -102.3, 0), V(8.8, -8.8, 0)),
], False)
sketch22.addConstraint([
    Sketcher.Constraint("Coincident", 0, 2, 1, 1),
    Sketcher.Constraint("Coincident", 1, 2, 2, 1),
    Sketcher.Constraint("Coincident", 2, 2, 3, 1),
    Sketcher.Constraint("Coincident", 3, 2, 0, 1),
    Sketcher.Constraint("Horizontal", 0),
    Sketcher.Constraint("Vertical", 1),
    Sketcher.Constraint("Horizontal", 2),
    Sketcher.Constraint("Vertical", 3),
    Sketcher.Constraint("DistanceX", 0, 2, 0, 1, Q("2.75 mm")),
    Sketcher.Constraint("DistanceY", 1, 2, 1, 1, Q("93.4978 mm")),
    Sketcher.Constraint("DistanceX", -1, 1, 0, 2, Q("6.013 mm")),
    Sketcher.Constraint("DistanceY", 0, 2, -1, 1, Q("8.763 mm")),
])
pad14 = body.newObject("PartDesign::Pad", "Pad013")
pad14.Profile = sketch22
pad14.Length = 100

# Sketch on XZ plane
sketch23 = body.newObject("Sketcher::SketchObject", "Sketch022")
sketch23.AttachmentSupport = (doc.getObject("XZ_Plane"), [""])
sketch23.MapMode = "FlatFace"
sketch23.AttachmentOffset = App.Placement(V(0, 0, -8.763), App.Rotation())
sketch23.addGeometry([
    Part.LineSegment(V(-7, -90, 0), V(-7, -21, 0)),
    Part.LineSegment(V(-7, -21, 0), V(71, -21, 0)),
    Part.LineSegment(V(71, -21, 0), V(71, -90, 0)),
    Part.LineSegment(V(71, -90, 0), V(-7, -90, 0)),
], False)
sketch23.addConstraint([
    Sketcher.Constraint("Coincident", 0, 2, 1, 1),
    Sketcher.Constraint("Coincident", 1, 2, 2, 1),
    Sketcher.Constraint("Coincident", 2, 2, 3, 1),
    Sketcher.Constraint("Coincident", 3, 2, 0, 1),
    Sketcher.Constraint("Vertical", 0),
    Sketcher.Constraint("Horizontal", 1),
    Sketcher.Constraint("Vertical", 2),
    Sketcher.Constraint("Horizontal", 3),
    Sketcher.Constraint("DistanceY", 0, 1, 0, 2, Q("68.9 mm")),
    Sketcher.Constraint("DistanceX", 1, 1, 1, 2, Q("78.425 mm")),
    Sketcher.Constraint("DistanceX", 0, 2, -1, 1, Q("7.25 mm")),
    Sketcher.Constraint("DistanceY", 0, 2, -1, 1, Q("21.062 mm")),
])
pocket9 = body.newObject("PartDesign::Pocket", "Pocket008")
pocket9.Profile = sketch23
pocket9.Length = 5
pocket9.Reversed = True

# Sketch on XZ plane
sketch24 = body.newObject("Sketcher::SketchObject", "Sketch023")
sketch24.AttachmentSupport = (doc.getObject("XZ_Plane"), [""])
sketch24.MapMode = "FlatFace"
sketch24.AttachmentOffset = App.Placement(V(0, 0, -8.763), App.Rotation())
sketch24.addGeometry([
    Part.LineSegment(V(71, -46, 0), V(71, -66, 0)),
    Part.LineSegment(V(71, -66, 0), V(-7, -66, 0)),
    Part.LineSegment(V(-7, -66, 0), V(-7, -46, 0)),
    Part.LineSegment(V(-7, -46, 0), V(71, -46, 0)),
], False)
sketch24.addConstraint([
    Sketcher.Constraint("Coincident", 0, 2, 1, 1),
    Sketcher.Constraint("Coincident", 1, 2, 2, 1),
    Sketcher.Constraint("Coincident", 2, 2, 3, 1),
    Sketcher.Constraint("Coincident", 3, 2, 0, 1),
    Sketcher.Constraint("Vertical", 0),
    Sketcher.Constraint("Horizontal", 1),
    Sketcher.Constraint("Vertical", 2),
    Sketcher.Constraint("Horizontal", 3),
    Sketcher.Constraint("DistanceY", 0, 2, 0, 1, Q("20 mm")),
    Sketcher.Constraint("DistanceX", 1, 2, 1, 1, Q("78.425 mm")),
    Sketcher.Constraint("DistanceX", 1, 2, -1, 1, Q("7.25 mm")),
    Sketcher.Constraint("DistanceY", 0, 2, -1, 1, Q("65.512 mm")),
])
pad15 = body.newObject("PartDesign::Pad", "Pad014")
pad15.Profile = sketch24
pad15.Length = 2.75

# Sketch on YZ plane
sketch25 = body.newObject("Sketcher::SketchObject", "Sketch024")
sketch25.AttachmentSupport = (doc.getObject("YZ_Plane"), [""])
sketch25.MapMode = "FlatFace"
sketch25.AttachmentOffset = App.Placement(V(0, 0, 82.75), App.Rotation())
sketch25.addGeometry([
    Part.LineSegment(V(0, -8.8, 0), V(8.8, -8.8, 0)),  # 0
    Part.LineSegment(V(8.8, -8.8, 0), V(8.8, 0, 0)),  # 1
    Part.LineSegment(V(8.8, 0, 0), V(0, 0, 0)),  # 2
    Part.LineSegment(V(0, 0, 0), V(0, -8.8, 0)),  # 3
    Part.Circle(V(4.4, -4.4, 0), V(0, 0, 1), 3.2),  # 4
    Part.LineSegment(V(0, -111, 0), V(8.8, -111, 0)),  # 5
    Part.LineSegment(V(8.8, -111, 0), V(8.8, -102.3, 0)),  # 6
    Part.LineSegment(V(8.8, -102.3, 0), V(0, -102.3, 0)),  # 7
    Part.LineSegment(V(0, -102.3, 0), V(0, -111, 0)),  # 8
    Part.Circle(V(4.4, -106.6, 0), V(0, 0, 1), 3.2),  # 9
], False)
sketch25.addConstraint([
    Sketcher.Constraint("Coincident", 0, 2, 1, 1),
    Sketcher.Constraint("Coincident", 1, 2, 2, 1),
    Sketcher.Constraint("Coincident", 2, 2, 3, 1),
    Sketcher.Constraint("Coincident", 3, 2, 0, 1),
    Sketcher.Constraint("Coincident", 5, 2, 6, 1),
    Sketcher.Constraint("Coincident", 6, 2, 7, 1),
    Sketcher.Constraint("Coincident", 7, 2, 8, 1),
    Sketcher.Constraint("Coincident", 8, 2, 5, 1),
    Sketcher.Constraint("Horizontal", 0),
    Sketcher.Constraint("Vertical", 1),
    Sketcher.Constraint("Horizontal", 2),
    Sketcher.Constraint("Vertical", 3),
    Sketcher.Constraint("Horizontal", 5),
    Sketcher.Constraint("Vertical", 6),
    Sketcher.Constraint("Horizontal", 7),
    Sketcher.Constraint("Vertical", 8),
    Sketcher.Constraint("Coincident", 2, 2, -1, 1),
    Sketcher.Constraint("Equal", 4, 9),
    Sketcher.Constraint("PointOnObject", 7, 2, -2),
    Sketcher.Constraint("Vertical", 4, 3, 9, 3),
    Sketcher.Constraint("Vertical", 1, 2, 5, 2),
    Sketcher.Constraint("Equal", 7, 1),
    Sketcher.Constraint("Equal", 3, 6),
    Sketcher.Constraint("Diameter", 4, Q("6.5 mm")),
    Sketcher.Constraint("DistanceX", 0, 1, 0, 2, Q("8.763 mm")),
    Sketcher.Constraint("DistanceX", -1, 1, 4, 3, Q("4.3815 mm")),
    Sketcher.Constraint("DistanceY", 4, 3, -1, 1, Q("4.3815 mm")),
    Sketcher.Constraint("DistanceY", 9, 3, -1, 1, Q("106.6423 mm")),
    Sketcher.Constraint("DistanceY", 5, 2, -1, 1, Q("111.0238 mm")),
])
pad16 = body.newObject("PartDesign::Pad", "Pad015")
pad16.Profile = sketch25
pad16.Length = 20
pad16.Reversed = True

doc.recompute()
